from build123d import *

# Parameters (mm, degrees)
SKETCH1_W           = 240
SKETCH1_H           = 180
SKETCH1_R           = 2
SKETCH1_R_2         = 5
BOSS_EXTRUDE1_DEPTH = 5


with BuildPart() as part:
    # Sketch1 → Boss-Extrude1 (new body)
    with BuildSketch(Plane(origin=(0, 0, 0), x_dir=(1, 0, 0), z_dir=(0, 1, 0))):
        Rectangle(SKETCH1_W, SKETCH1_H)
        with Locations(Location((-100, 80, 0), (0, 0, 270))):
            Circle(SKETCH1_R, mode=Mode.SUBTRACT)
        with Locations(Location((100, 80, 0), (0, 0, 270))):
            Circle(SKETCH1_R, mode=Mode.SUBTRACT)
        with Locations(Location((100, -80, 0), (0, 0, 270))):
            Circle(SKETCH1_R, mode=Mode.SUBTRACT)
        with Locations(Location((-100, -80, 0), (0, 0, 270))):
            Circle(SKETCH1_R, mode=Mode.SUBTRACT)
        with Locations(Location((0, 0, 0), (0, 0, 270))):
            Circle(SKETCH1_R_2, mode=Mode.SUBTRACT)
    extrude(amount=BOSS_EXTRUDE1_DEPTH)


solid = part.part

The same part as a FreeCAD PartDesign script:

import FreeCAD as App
import Part
import Sketcher
from FreeCAD import Vector
Q = App.Units.Quantity

doc = App.newDocument("Part")
params = doc.addObject("Spreadsheet::Sheet", "Params")
for row, (alias, value) in enumerate([
    ("sketch1_diameter", "4 mm"),
    ("sketch1_diameter2", "10 mm"),
    ("sketch1_width", "240 mm"),
    ("sketch1_height", "180 mm"),
    ("pad1_length", "5 mm"),
], start=1):
    params.set(f"A{row}", alias)
    params.set(f"B{row}", "=" + value)
    params.setAlias(f"B{row}", alias)

body = doc.addObject("PartDesign::Body", "Body")

# Sketch on XZ plane
sketch1 = body.newObject("Sketcher::SketchObject", "Sketch")
sketch1.AttachmentSupport = (doc.getObject("XZ_Plane"), [""])
sketch1.MapMode = "FlatFace"
sketch1.addGeometry([
    Part.LineSegment(Vector(-120, -90, 0), Vector(-120, 90, 0)),  # 0
    Part.LineSegment(Vector(-120, 90, 0), Vector(120, 90, 0)),  # 1
    Part.LineSegment(Vector(120, 90, 0), Vector(120, -90, 0)),  # 2
    Part.LineSegment(Vector(120, -90, 0), Vector(-120, -90, 0)),  # 3
    Part.Circle(Vector(-100, 80, 0), Vector(0, 0, 1), 2),  # 4
    Part.Circle(Vector(100, 80, 0), Vector(0, 0, 1), 2),  # 5
    Part.Circle(Vector(-100, -80, 0), Vector(0, 0, 1), 2),  # 6
    Part.Circle(Vector(0, 0, 0), Vector(0, 0, 1), 5),  # 7
    Part.Circle(Vector(100, -80, 0), Vector(0, 0, 1), 2),  # 8
], False)
sketch1.addConstraint([
    Sketcher.Constraint("Coincident", 0, 2, 1, 1),
    Sketcher.Constraint("Coincident", 1, 2, 2, 1),
    Sketcher.Constraint("Coincident", 2, 2, 3, 1),
    Sketcher.Constraint("Coincident", 3, 2, 0, 1),
    Sketcher.Constraint("Vertical", 0),
    Sketcher.Constraint("Horizontal", 1),
    Sketcher.Constraint("Vertical", 2),
    Sketcher.Constraint("Horizontal", 3),
    Sketcher.Constraint("Coincident", 7, 3, -1, 1),
    Sketcher.Constraint("Equal", 4, 5),
    Sketcher.Constraint("Equal", 5, 6),
    Sketcher.Constraint("Equal", 6, 8),
    Sketcher.Constraint("Symmetric", 5, 3, 6, 3, -1, 1),
    Sketcher.Constraint("Symmetric", 4, 3, 8, 3, -1, 1),
    Sketcher.Constraint("Symmetric", 0, 2, 2, 2, -1, 1),
    Sketcher.Constraint("Symmetric", 4, 3, 5, 3, -2),
    Sketcher.Constraint("Diameter", 4, Q("4 mm")),
    Sketcher.Constraint("Diameter", 7, Q("10 mm")),
    Sketcher.Constraint("DistanceX", 1, 1, 1, 2, Q("240 mm")),
    Sketcher.Constraint("DistanceY", 0, 1, 0, 2, Q("180 mm")),
    Sketcher.Constraint("DistanceX", 4, 3, -1, 1, Q("100 mm")),
    Sketcher.Constraint("DistanceY", -1, 1, 4, 3, Q("80 mm")),
])
sketch1.setExpression("Constraints[16]", "Params.sketch1_diameter")
sketch1.setExpression("Constraints[17]", "Params.sketch1_diameter2")
sketch1.setExpression("Constraints[18]", "Params.sketch1_width")
sketch1.setExpression("Constraints[19]", "Params.sketch1_height")
pad1 = body.newObject("PartDesign::Pad", "Pad")
pad1.Profile = sketch1
pad1.setExpression("Length", "Params.pad1_length")
pad1.Reversed = True

doc.recompute()
